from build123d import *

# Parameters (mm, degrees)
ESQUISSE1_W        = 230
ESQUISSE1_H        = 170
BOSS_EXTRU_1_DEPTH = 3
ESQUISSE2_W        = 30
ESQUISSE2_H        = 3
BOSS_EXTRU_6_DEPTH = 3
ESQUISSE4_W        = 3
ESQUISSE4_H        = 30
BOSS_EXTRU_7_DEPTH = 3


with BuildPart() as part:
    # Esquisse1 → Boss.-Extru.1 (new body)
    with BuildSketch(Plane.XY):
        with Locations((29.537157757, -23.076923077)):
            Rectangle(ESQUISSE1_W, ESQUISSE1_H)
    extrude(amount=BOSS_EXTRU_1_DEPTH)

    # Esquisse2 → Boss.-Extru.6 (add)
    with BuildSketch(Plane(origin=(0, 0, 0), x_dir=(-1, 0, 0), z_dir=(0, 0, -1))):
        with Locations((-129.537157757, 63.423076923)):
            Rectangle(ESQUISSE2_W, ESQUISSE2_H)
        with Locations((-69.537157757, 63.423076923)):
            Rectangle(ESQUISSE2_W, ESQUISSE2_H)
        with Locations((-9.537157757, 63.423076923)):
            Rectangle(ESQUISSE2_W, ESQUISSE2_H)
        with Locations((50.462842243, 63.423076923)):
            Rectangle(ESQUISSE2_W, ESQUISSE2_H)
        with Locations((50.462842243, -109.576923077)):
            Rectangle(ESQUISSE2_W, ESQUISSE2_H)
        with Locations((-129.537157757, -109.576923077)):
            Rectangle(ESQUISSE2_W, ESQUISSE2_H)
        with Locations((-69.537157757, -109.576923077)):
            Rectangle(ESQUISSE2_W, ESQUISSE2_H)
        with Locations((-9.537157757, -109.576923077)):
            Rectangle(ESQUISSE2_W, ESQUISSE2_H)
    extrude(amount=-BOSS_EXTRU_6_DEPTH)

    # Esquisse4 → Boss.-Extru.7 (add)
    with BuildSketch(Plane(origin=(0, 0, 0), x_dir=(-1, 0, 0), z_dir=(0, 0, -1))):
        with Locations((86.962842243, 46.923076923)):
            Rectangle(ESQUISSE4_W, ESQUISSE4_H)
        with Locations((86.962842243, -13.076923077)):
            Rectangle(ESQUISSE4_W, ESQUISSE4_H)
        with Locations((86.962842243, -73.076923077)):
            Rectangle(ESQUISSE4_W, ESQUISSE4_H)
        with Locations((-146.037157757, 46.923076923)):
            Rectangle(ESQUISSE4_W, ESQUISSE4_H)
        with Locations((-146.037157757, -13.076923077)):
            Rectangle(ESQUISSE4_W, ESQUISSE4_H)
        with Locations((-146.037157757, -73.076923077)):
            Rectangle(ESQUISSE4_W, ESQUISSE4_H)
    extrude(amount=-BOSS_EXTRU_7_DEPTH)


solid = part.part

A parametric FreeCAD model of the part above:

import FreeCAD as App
import Part
import Sketcher

doc = App.newDocument("Part")
params = doc.addObject("Spreadsheet::Sheet", "Params")
for row, (alias, value) in enumerate([
    ("sketch1_width", "230 mm"),
    ("sketch1_height", "170 mm"),
    ("pad1_length", "3 mm"),
    ("sketch2_width", "30 mm"),
    ("sketch2_height", "3 mm"),
    ("pad2_length", "3 mm"),
    ("sketch3_width", "3 mm"),
    ("sketch3_height", "30 mm"),
    ("pad3_length", "3 mm"),
], start=1):
    params.set(f"A{row}", alias)
    params.set(f"B{row}", "=" + value)
    params.setAlias(f"B{row}", alias)

body = doc.addObject("PartDesign::Body", "Body")

sketch1 = doc.addObject("Sketcher::SketchObject", "Sketch")
body.addObject(sketch1)
sketch1.AttachmentSupport = (doc.XY_Plane, [""])
sketch1.MapMode = "FlatFace"
sketch1.addGeometry(Part.LineSegment(App.Vector(-85, 62, 0), App.Vector(-85, -108, 0)), False)
sketch1.addGeometry(Part.LineSegment(App.Vector(-85, -108, 0), App.Vector(145, -108, 0)), False)
sketch1.addGeometry(Part.LineSegment(App.Vector(145, -108, 0), App.Vector(145, 62, 0)), False)
sketch1.addGeometry(Part.LineSegment(App.Vector(145, 62, 0), App.Vector(-85, 62, 0)), False)
sketch1.addConstraint(Sketcher.Constraint("Coincident", 0, 2, 1, 1))
sketch1.addConstraint(Sketcher.Constraint("Coincident", 1, 2, 2, 1))
sketch1.addConstraint(Sketcher.Constraint("Coincident", 2, 2, 3, 1))
sketch1.addConstraint(Sketcher.Constraint("Coincident", 3, 2, 0, 1))
sketch1.addConstraint(Sketcher.Constraint("Vertical", 0))
sketch1.addConstraint(Sketcher.Constraint("Horizontal", 1))
sketch1.addConstraint(Sketcher.Constraint("Vertical", 2))
sketch1.addConstraint(Sketcher.Constraint("Horizontal", 3))
sketch1.addConstraint(Sketcher.Constraint("DistanceX", 1, 1, 1, 2, 230.0))
sketch1.addConstraint(Sketcher.Constraint("DistanceY", 0, 2, 0, 1, 170.0))
sketch1.addConstraint(Sketcher.Constraint("DistanceX", 0, 2, -1, 1, 85.462842))
sketch1.addConstraint(Sketcher.Constraint("DistanceY", 0, 2, -1, 1, 108.076923))
sketch1.setExpression("Constraints[8]", "Params.sketch1_width")
sketch1.setExpression("Constraints[9]", "Params.sketch1_height")
pad1 = doc.addObject("PartDesign::Pad", "Pad")
body.addObject(pad1)
pad1.Profile = sketch1
pad1.setExpression("Length", "Params.pad1_length")

sketch2 = doc.addObject("Sketcher::SketchObject", "Sketch001")
body.addObject(sketch2)
sketch2.AttachmentSupport = (doc.XY_Plane, [""])
sketch2.MapMode = "FlatFace"
sketch2.addGeometry(Part.LineSegment(App.Vector(144.5, 64.9, 0), App.Vector(144.5, 61.9, 0)), False)
sketch2.addGeometry(Part.LineSegment(App.Vector(144.5, 61.9, 0), App.Vector(114.5, 61.9, 0)), False)
sketch2.addGeometry(Part.LineSegment(App.Vector(114.5, 61.9, 0), App.Vector(114.5, 64.9, 0)), False)
sketch2.addGeometry(Part.LineSegment(App.Vector(114.5, 64.9, 0), App.Vector(144.5, 64.9, 0)), False)
sketch2.addGeometry(Part.LineSegment(App.Vector(84.5, 64.9, 0), App.Vector(84.5, 61.9, 0)), False)
sketch2.addGeometry(Part.LineSegment(App.Vector(84.5, 61.9, 0), App.Vector(54.5, 61.9, 0)), False)
sketch2.addGeometry(Part.LineSegment(App.Vector(54.5, 61.9, 0), App.Vector(54.5, 64.9, 0)), False)
sketch2.addGeometry(Part.LineSegment(App.Vector(54.5, 64.9, 0), App.Vector(84.5, 64.9, 0)), False)
sketch2.addGeometry(Part.LineSegment(App.Vector(24.5, 64.9, 0), App.Vector(24.5, 61.9, 0)), False)
sketch2.addGeometry(Part.LineSegment(App.Vector(24.5, 61.9, 0), App.Vector(-5.5, 61.9, 0)), False)
sketch2.addGeometry(Part.LineSegment(App.Vector(-5.5, 61.9, 0), App.Vector(-5.5, 64.9, 0)), False)
sketch2.addGeometry(Part.LineSegment(App.Vector(-5.5, 64.9, 0), App.Vector(24.5, 64.9, 0)), False)
sketch2.addGeometry(Part.LineSegment(App.Vector(-35.5, 64.9, 0), App.Vector(-35.5, 61.9, 0)), False)
sketch2.addGeometry(Part.LineSegment(App.Vector(-35.5, 61.9, 0), App.Vector(-65.5, 61.9, 0)), False)
sketch2.addGeometry(Part.LineSegment(App.Vector(-65.5, 61.9, 0), App.Vector(-65.5, 64.9, 0)), False)
sketch2.addGeometry(Part.LineSegment(App.Vector(-65.5, 64.9, 0), App.Vector(-35.5, 64.9, 0)), False)
sketch2.addGeometry(Part.LineSegment(App.Vector(-35.5, -108.1, 0), App.Vector(-35.5, -111.1, 0)), False)
sketch2.addGeometry(Part.LineSegment(App.Vector(-35.5, -111.1, 0), App.Vector(-65.5, -111.1, 0)), False)
sketch2.addGeometry(Part.LineSegment(App.Vector(-65.5, -111.1, 0), App.Vector(-65.5, -108.1, 0)), False)
sketch2.addGeometry(Part.LineSegment(App.Vector(-65.5, -108.1, 0), App.Vector(-35.5, -108.1, 0)), False)
sketch2.addGeometry(Part.LineSegment(App.Vector(144.5, -108.1, 0), App.Vector(144.5, -111.1, 0)), False)
sketch2.addGeometry(Part.LineSegment(App.Vector(144.5, -111.1, 0), App.Vector(114.5, -111.1, 0)), False)
sketch2.addGeometry(Part.LineSegment(App.Vector(114.5, -111.1, 0), App.Vector(114.5, -108.1, 0)), False)
sketch2.addGeometry(Part.LineSegment(App.Vector(114.5, -108.1, 0), App.Vector(144.5, -108.1, 0)), False)
sketch2.addGeometry(Part.LineSegment(App.Vector(84.5, -108.1, 0), App.Vector(84.5, -111.1, 0)), False)
sketch2.addGeometry(Part.LineSegment(App.Vector(84.5, -111.1, 0), App.Vector(54.5, -111.1, 0)), False)
sketch2.addGeometry(Part.LineSegment(App.Vector(54.5, -111.1, 0), App.Vector(54.5, -108.1, 0)), False)
sketch2.addGeometry(Part.LineSegment(App.Vector(54.5, -108.1, 0), App.Vector(84.5, -108.1, 0)), False)
sketch2.addGeometry(Part.LineSegment(App.Vector(24.5, -108.1, 0), App.Vector(24.5, -111.1, 0)), False)
sketch2.addGeometry(Part.LineSegment(App.Vector(24.5, -111.1, 0), App.Vector(-5.5, -111.1, 0)), False)
sketch2.addGeometry(Part.LineSegment(App.Vector(-5.5, -111.1, 0), App.Vector(-5.5, -108.1, 0)), False)
sketch2.addGeometry(Part.LineSegment(App.Vector(-5.5, -108.1, 0), App.Vector(24.5, -108.1, 0)), False)
sketch2.addConstraint(Sketcher.Constraint("Coincident", 0, 2, 1, 1))
sketch2.addConstraint(Sketcher.Constraint("Coincident", 1, 2, 2, 1))
sketch2.addConstraint(Sketcher.Constraint("Coincident", 2, 2, 3, 1))
sketch2.addConstraint(Sketcher.Constraint("Coincident", 3, 2, 0, 1))
sketch2.addConstraint(Sketcher.Constraint("Coincident", 4, 2, 5, 1))
sketch2.addConstraint(Sketcher.Constraint("Coincident", 5, 2, 6, 1))
sketch2.addConstraint(Sketcher.Constraint("Coincident", 6, 2, 7, 1))
sketch2.addConstraint(Sketcher.Constraint("Coincident", 7, 2, 4, 1))
sketch2.addConstraint(Sketcher.Constraint("Coincident", 8, 2, 9, 1))
sketch2.addConstraint(Sketcher.Constraint("Coincident", 9, 2, 10, 1))
sketch2.addConstraint(Sketcher.Constraint("Coincident", 10, 2, 11, 1))
sketch2.addConstraint(Sketcher.Constraint("Coincident", 11, 2, 8, 1))
sketch2.addConstraint(Sketcher.Constraint("Coincident", 12, 2, 13, 1))
sketch2.addConstraint(Sketcher.Constraint("Coincident", 13, 2, 14, 1))
sketch2.addConstraint(Sketcher.Constraint("Coincident", 14, 2, 15, 1))
sketch2.addConstraint(Sketcher.Constraint("Coincident", 15, 2, 12, 1))
sketch2.addConstraint(Sketcher.Constraint("Coincident", 16, 2, 17, 1))
sketch2.addConstraint(Sketcher.Constraint("Coincident", 17, 2, 18, 1))
sketch2.addConstraint(Sketcher.Constraint("Coincident", 18, 2, 19, 1))
sketch2.addConstraint(Sketcher.Constraint("Coincident", 19, 2, 16, 1))
sketch2.addConstraint(Sketcher.Constraint("Coincident", 20, 2, 21, 1))
sketch2.addConstraint(Sketcher.Constraint("Coincident", 21, 2, 22, 1))
sketch2.addConstraint(Sketcher.Constraint("Coincident", 22, 2, 23, 1))
sketch2.addConstraint(Sketcher.Constraint("Coincident", 23, 2, 20, 1))
sketch2.addConstraint(Sketcher.Constraint("Coincident", 24, 2, 25, 1))
sketch2.addConstraint(Sketcher.Constraint("Coincident", 25, 2, 26, 1))
sketch2.addConstraint(Sketcher.Constraint("Coincident", 26, 2, 27, 1))
sketch2.addConstraint(Sketcher.Constraint("Coincident", 27, 2, 24, 1))
sketch2.addConstraint(Sketcher.Constraint("Coincident", 28, 2, 29, 1))
sketch2.addConstraint(Sketcher.Constraint("Coincident", 29, 2, 30, 1))
sketch2.addConstraint(Sketcher.Constraint("Coincident", 30, 2, 31, 1))
sketch2.addConstraint(Sketcher.Constraint("Coincident", 31, 2, 28, 1))
sketch2.addConstraint(Sketcher.Constraint("Vertical", 0))
sketch2.addConstraint(Sketcher.Constraint("Horizontal", 1))
sketch2.addConstraint(Sketcher.Constraint("Vertical", 2))
sketch2.addConstraint(Sketcher.Constraint("Horizontal", 3))
sketch2.addConstraint(Sketcher.Constraint("Vertical", 4))
sketch2.addConstraint(Sketcher.Constraint("Horizontal", 5))
sketch2.addConstraint(Sketcher.Constraint("Vertical", 6))
sketch2.addConstraint(Sketcher.Constraint("Horizontal", 7))
sketch2.addConstraint(Sketcher.Constraint("Vertical", 8))
sketch2.addConstraint(Sketcher.Constraint("Horizontal", 9))
sketch2.addConstraint(Sketcher.Constraint("Vertical", 10))
sketch2.addConstraint(Sketcher.Constraint("Horizontal", 11))
sketch2.addConstraint(Sketcher.Constraint("Vertical", 12))
sketch2.addConstraint(Sketcher.Constraint("Horizontal", 13))
sketch2.addConstraint(Sketcher.Constraint("Vertical", 14))
sketch2.addConstraint(Sketcher.Constraint("Horizontal", 15))
sketch2.addConstraint(Sketcher.Constraint("Vertical", 16))
sketch2.addConstraint(Sketcher.Constraint("Horizontal", 17))
sketch2.addConstraint(Sketcher.Constraint("Vertical", 18))
sketch2.addConstraint(Sketcher.Constraint("Horizontal", 19))
sketch2.addConstraint(Sketcher.Constraint("Vertical", 20))
sketch2.addConstraint(Sketcher.Constraint("Horizontal", 21))
sketch2.addConstraint(Sketcher.Constraint("Vertical", 22))
sketch2.addConstraint(Sketcher.Constraint("Horizontal", 23))
sketch2.addConstraint(Sketcher.Constraint("Vertical", 24))
sketch2.addConstraint(Sketcher.Constraint("Horizontal", 25))
sketch2.addConstraint(Sketcher.Constraint("Vertical", 26))
sketch2.addConstraint(Sketcher.Constraint("Horizontal", 27))
sketch2.addConstraint(Sketcher.Constraint("Vertical", 28))
sketch2.addConstraint(Sketcher.Constraint("Horizontal", 29))
sketch2.addConstraint(Sketcher.Constraint("Vertical", 30))
sketch2.addConstraint(Sketcher.Constraint("Horizontal", 31))
sketch2.addConstraint(Sketcher.Constraint("Horizontal", 1, 2, 4, 2))
sketch2.addConstraint(Sketcher.Constraint("Horizontal", 3, 2, 6, 2))
sketch2.addConstraint(Sketcher.Constraint("Horizontal", 5, 2, 8, 2))
sketch2.addConstraint(Sketcher.Constraint("Horizontal", 7, 2, 10, 2))
sketch2.addConstraint(Sketcher.Constraint("Horizontal", 9, 2, 12, 2))
sketch2.addConstraint(Sketcher.Constraint("Horizontal", 11, 2, 14, 2))
sketch2.addConstraint(Sketcher.Constraint("Horizontal", 17, 2, 20, 2))
sketch2.addConstraint(Sketcher.Constraint("Horizontal", 19, 2, 22, 2))
sketch2.addConstraint(Sketcher.Constraint("Horizontal", 21, 2, 24, 2))
sketch2.addConstraint(Sketcher.Constraint("Horizontal", 23, 2, 26, 2))
sketch2.addConstraint(Sketcher.Constraint("Horizontal", 25, 2, 28, 2))
sketch2.addConstraint(Sketcher.Constraint("Horizontal", 27, 2, 30, 2))
sketch2.addConstraint(Sketcher.Constraint("Vertical", 15, 2, 16, 2))
sketch2.addConstraint(Sketcher.Constraint("Vertical", 14, 2, 17, 2))
sketch2.addConstraint(Sketcher.Constraint("Vertical", 3, 2, 20, 2))
sketch2.addConstraint(Sketcher.Constraint("Vertical", 2, 2, 21, 2))
sketch2.addConstraint(Sketcher.Constraint("Vertical", 7, 2, 24, 2))
sketch2.addConstraint(Sketcher.Constraint("Vertical", 6, 2, 25, 2))
sketch2.addConstraint(Sketcher.Constraint("Vertical", 11, 2, 28, 2))
sketch2.addConstraint(Sketcher.Constraint("Vertical", 10, 2, 29, 2))
sketch2.addConstraint(Sketcher.Constraint("Equal", 3, 5))
sketch2.addConstraint(Sketcher.Constraint("Equal", 7, 9))
sketch2.addConstraint(Sketcher.Constraint("Equal", 11, 13))
sketch2.addConstraint(Sketcher.Constraint("Equal", 14, 16))
sketch2.addConstraint(Sketcher.Constraint("DistanceX", 1, 2, 1, 1, 30.0))
sketch2.addConstraint(Sketcher.Constraint("DistanceY", 0, 2, 0, 1, 3.0))
sketch2.addConstraint(Sketcher.Constraint("DistanceX", 4, 2, 1, 2, 30.0))
sketch2.addConstraint(Sketcher.Constraint("DistanceX", 8, 2, 5, 2, 30.0))
sketch2.addConstraint(Sketcher.Constraint("DistanceX", 12, 2, 9, 2, 30.0))
sketch2.addConstraint(Sketcher.Constraint("DistanceY", 16, 2, 12, 2, 173.0))
sketch2.addConstraint(Sketcher.Constraint("DistanceX", -1, 1, 0, 2, 144.537158))
sketch2.addConstraint(Sketcher.Constraint("DistanceY", -1, 1, 0, 2, 61.923077))
sketch2.setExpression("Constraints[88]", "Params.sketch2_width")
sketch2.setExpression("Constraints[89]", "Params.sketch2_height")
pad2 = doc.addObject("PartDesign::Pad", "Pad001")
body.addObject(pad2)
pad2.Profile = sketch2
pad2.setExpression("Length", "Params.pad2_length")

sketch3 = doc.addObject("Sketcher::SketchObject", "Sketch002")
body.addObject(sketch3)
sketch3.AttachmentSupport = (doc.XY_Plane, [""])
sketch3.MapMode = "FlatFace"
sketch3.addGeometry(Part.LineSegment(App.Vector(-85.5, 61.9, 0), App.Vector(-85.5, 31.9, 0)), False)
sketch3.addGeometry(Part.LineSegment(App.Vector(-85.5, 31.9, 0), App.Vector(-88.5, 31.9, 0)), False)
sketch3.addGeometry(Part.LineSegment(App.Vector(-88.5, 31.9, 0), App.Vector(-88.5, 61.9, 0)), False)
sketch3.addGeometry(Part.LineSegment(App.Vector(-88.5, 61.9, 0), App.Vector(-85.5, 61.9, 0)), False)
sketch3.addGeometry(Part.LineSegment(App.Vector(-85.5, 1.9, 0), App.Vector(-85.5, -28.1, 0)), False)
sketch3.addGeometry(Part.LineSegment(App.Vector(-85.5, -28.1, 0), App.Vector(-88.5, -28.1, 0)), False)
sketch3.addGeometry(Part.LineSegment(App.Vector(-88.5, -28.1, 0), App.Vector(-88.5, 1.9, 0)), False)
sketch3.addGeometry(Part.LineSegment(App.Vector(-88.5, 1.9, 0), App.Vector(-85.5, 1.9, 0)), False)
sketch3.addGeometry(Part.LineSegment(App.Vector(-85.5, -58.1, 0), App.Vector(-85.5, -88.1, 0)), False)
sketch3.addGeometry(Part.LineSegment(App.Vector(-85.5, -88.1, 0), App.Vector(-88.5, -88.1, 0)), False)
sketch3.addGeometry(Part.LineSegment(App.Vector(-88.5, -88.1, 0), App.Vector(-88.5, -58.1, 0)), False)
sketch3.addGeometry(Part.LineSegment(App.Vector(-88.5, -58.1, 0), App.Vector(-85.5, -58.1, 0)), False)
sketch3.addGeometry(Part.LineSegment(App.Vector(147.5, 61.9, 0), App.Vector(147.5, 31.9, 0)), False)
sketch3.addGeometry(Part.LineSegment(App.Vector(147.5, 31.9, 0), App.Vector(144.5, 31.9, 0)), False)
sketch3.addGeometry(Part.LineSegment(App.Vector(144.5, 31.9, 0), App.Vector(144.5, 61.9, 0)), False)
sketch3.addGeometry(Part.LineSegment(App.Vector(144.5, 61.9, 0), App.Vector(147.5, 61.9, 0)), False)
sketch3.addGeometry(Part.LineSegment(App.Vector(147.5, 1.9, 0), App.Vector(147.5, -28.1, 0)), False)
sketch3.addGeometry(Part.LineSegment(App.Vector(147.5, -28.1, 0), App.Vector(144.5, -28.1, 0)), False)
sketch3.addGeometry(Part.LineSegment(App.Vector(144.5, -28.1, 0), App.Vector(144.5, 1.9, 0)), False)
sketch3.addGeometry(Part.LineSegment(App.Vector(144.5, 1.9, 0), App.Vector(147.5, 1.9, 0)), False)
sketch3.addGeometry(Part.LineSegment(App.Vector(147.5, -58.1, 0), App.Vector(147.5, -88.1, 0)), False)
sketch3.addGeometry(Part.LineSegment(App.Vector(147.5, -88.1, 0), App.Vector(144.5, -88.1, 0)), False)
sketch3.addGeometry(Part.LineSegment(App.Vector(144.5, -88.1, 0), App.Vector(144.5, -58.1, 0)), False)
sketch3.addGeometry(Part.LineSegment(App.Vector(144.5, -58.1, 0), App.Vector(147.5, -58.1, 0)), False)
sketch3.addConstraint(Sketcher.Constraint("Coincident", 0, 2, 1, 1))
sketch3.addConstraint(Sketcher.Constraint("Coincident", 1, 2, 2, 1))
sketch3.addConstraint(Sketcher.Constraint("Coincident", 2, 2, 3, 1))
sketch3.addConstraint(Sketcher.Constraint("Coincident", 3, 2, 0, 1))
sketch3.addConstraint(Sketcher.Constraint("Coincident", 4, 2, 5, 1))
sketch3.addConstraint(Sketcher.Constraint("Coincident", 5, 2, 6, 1))
sketch3.addConstraint(Sketcher.Constraint("Coincident", 6, 2, 7, 1))
sketch3.addConstraint(Sketcher.Constraint("Coincident", 7, 2, 4, 1))
sketch3.addConstraint(Sketcher.Constraint("Coincident", 8, 2, 9, 1))
sketch3.addConstraint(Sketcher.Constraint("Coincident", 9, 2, 10, 1))
sketch3.addConstraint(Sketcher.Constraint("Coincident", 10, 2, 11, 1))
sketch3.addConstraint(Sketcher.Constraint("Coincident", 11, 2, 8, 1))
sketch3.addConstraint(Sketcher.Constraint("Coincident", 12, 2, 13, 1))
sketch3.addConstraint(Sketcher.Constraint("Coincident", 13, 2, 14, 1))
sketch3.addConstraint(Sketcher.Constraint("Coincident", 14, 2, 15, 1))
sketch3.addConstraint(Sketcher.Constraint("Coincident", 15, 2, 12, 1))
sketch3.addConstraint(Sketcher.Constraint("Coincident", 16, 2, 17, 1))
sketch3.addConstraint(Sketcher.Constraint("Coincident", 17, 2, 18, 1))
sketch3.addConstraint(Sketcher.Constraint("Coincident", 18, 2, 19, 1))
sketch3.addConstraint(Sketcher.Constraint("Coincident", 19, 2, 16, 1))
sketch3.addConstraint(Sketcher.Constraint("Coincident", 20, 2, 21, 1))
sketch3.addConstraint(Sketcher.Constraint("Coincident", 21, 2, 22, 1))
sketch3.addConstraint(Sketcher.Constraint("Coincident", 22, 2, 23, 1))
sketch3.addConstraint(Sketcher.Constraint("Coincident", 23, 2, 20, 1))
sketch3.addConstraint(Sketcher.Constraint("Vertical", 0))
sketch3.addConstraint(Sketcher.Constraint("Horizontal", 1))
sketch3.addConstraint(Sketcher.Constraint("Vertical", 2))
sketch3.addConstraint(Sketcher.Constraint("Horizontal", 3))
sketch3.addConstraint(Sketcher.Constraint("Vertical", 4))
sketch3.addConstraint(Sketcher.Constraint("Horizontal", 5))
sketch3.addConstraint(Sketcher.Constraint("Vertical", 6))
sketch3.addConstraint(Sketcher.Constraint("Horizontal", 7))
sketch3.addConstraint(Sketcher.Constraint("Vertical", 8))
sketch3.addConstraint(Sketcher.Constraint("Horizontal", 9))
sketch3.addConstraint(Sketcher.Constraint("Vertical", 10))
sketch3.addConstraint(Sketcher.Constraint("Horizontal", 11))
sketch3.addConstraint(Sketcher.Constraint("Vertical", 12))
sketch3.addConstraint(Sketcher.Constraint("Horizontal", 13))
sketch3.addConstraint(Sketcher.Constraint("Vertical", 14))
sketch3.addConstraint(Sketcher.Constraint("Horizontal", 15))
sketch3.addConstraint(Sketcher.Constraint("Vertical", 16))
sketch3.addConstraint(Sketcher.Constraint("Horizontal", 17))
sketch3.addConstraint(Sketcher.Constraint("Vertical", 18))
sketch3.addConstraint(Sketcher.Constraint("Horizontal", 19))
sketch3.addConstraint(Sketcher.Constraint("Vertical", 20))
sketch3.addConstraint(Sketcher.Constraint("Horizontal", 21))
sketch3.addConstraint(Sketcher.Constraint("Vertical", 22))
sketch3.addConstraint(Sketcher.Constraint("Horizontal", 23))
sketch3.addConstraint(Sketcher.Constraint("Horizontal", 1, 2, 12, 2))
sketch3.addConstraint(Sketcher.Constraint("Horizontal", 3, 2, 14, 2))
sketch3.addConstraint(Sketcher.Constraint("Horizontal", 5, 2, 16, 2))
sketch3.addConstraint(Sketcher.Constraint("Horizontal", 7, 2, 18, 2))
sketch3.addConstraint(Sketcher.Constraint("Horizontal", 9, 2, 20, 2))
sketch3.addConstraint(Sketcher.Constraint("Horizontal", 11, 2, 22, 2))
sketch3.addConstraint(Sketcher.Constraint("Vertical", 3, 2, 4, 2))
sketch3.addConstraint(Sketcher.Constraint("Vertical", 2, 2, 5, 2))
sketch3.addConstraint(Sketcher.Constraint("Vertical", 7, 2, 8, 2))
sketch3.addConstraint(Sketcher.Constraint("Vertical", 6, 2, 9, 2))
sketch3.addConstraint(Sketcher.Constraint("Vertical", 15, 2, 16, 2))
sketch3.addConstraint(Sketcher.Constraint("Vertical", 14, 2, 17, 2))
sketch3.addConstraint(Sketcher.Constraint("Vertical", 19, 2, 20, 2))
sketch3.addConstraint(Sketcher.Constraint("Vertical", 18, 2, 21, 2))
sketch3.addConstraint(Sketcher.Constraint("Equal", 11, 13))
sketch3.addConstraint(Sketcher.Constraint("Equal", 2, 4))
sketch3.addConstraint(Sketcher.Constraint("Equal", 6, 8))
sketch3.addConstraint(Sketcher.Constraint("DistanceX", 1, 2, 1, 1, 3.0))
sketch3.addConstraint(Sketcher.Constraint("DistanceY", 0, 2, 0, 1, 30.0))
sketch3.addConstraint(Sketcher.Constraint("DistanceY", 4, 2, 0, 2, 60.0))
sketch3.addConstraint(Sketcher.Constraint("DistanceY", 8, 2, 4, 2, 60.0))
sketch3.addConstraint(Sketcher.Constraint("DistanceX", 0, 2, 12, 2, 233.0))
sketch3.addConstraint(Sketcher.Constraint("DistanceX", 0, 2, -1, 1, 85.462842))
sketch3.addConstraint(Sketcher.Constraint("DistanceY", -1, 1, 0, 2, 31.923077))
sketch3.setExpression("Constraints[65]", "Params.sketch3_width")
sketch3.setExpression("Constraints[66]", "Params.sketch3_height")
pad3 = doc.addObject("PartDesign::Pad", "Pad002")
body.addObject(pad3)
pad3.Profile = sketch3
pad3.setExpression("Length", "Params.pad3_length")

doc.recompute()
